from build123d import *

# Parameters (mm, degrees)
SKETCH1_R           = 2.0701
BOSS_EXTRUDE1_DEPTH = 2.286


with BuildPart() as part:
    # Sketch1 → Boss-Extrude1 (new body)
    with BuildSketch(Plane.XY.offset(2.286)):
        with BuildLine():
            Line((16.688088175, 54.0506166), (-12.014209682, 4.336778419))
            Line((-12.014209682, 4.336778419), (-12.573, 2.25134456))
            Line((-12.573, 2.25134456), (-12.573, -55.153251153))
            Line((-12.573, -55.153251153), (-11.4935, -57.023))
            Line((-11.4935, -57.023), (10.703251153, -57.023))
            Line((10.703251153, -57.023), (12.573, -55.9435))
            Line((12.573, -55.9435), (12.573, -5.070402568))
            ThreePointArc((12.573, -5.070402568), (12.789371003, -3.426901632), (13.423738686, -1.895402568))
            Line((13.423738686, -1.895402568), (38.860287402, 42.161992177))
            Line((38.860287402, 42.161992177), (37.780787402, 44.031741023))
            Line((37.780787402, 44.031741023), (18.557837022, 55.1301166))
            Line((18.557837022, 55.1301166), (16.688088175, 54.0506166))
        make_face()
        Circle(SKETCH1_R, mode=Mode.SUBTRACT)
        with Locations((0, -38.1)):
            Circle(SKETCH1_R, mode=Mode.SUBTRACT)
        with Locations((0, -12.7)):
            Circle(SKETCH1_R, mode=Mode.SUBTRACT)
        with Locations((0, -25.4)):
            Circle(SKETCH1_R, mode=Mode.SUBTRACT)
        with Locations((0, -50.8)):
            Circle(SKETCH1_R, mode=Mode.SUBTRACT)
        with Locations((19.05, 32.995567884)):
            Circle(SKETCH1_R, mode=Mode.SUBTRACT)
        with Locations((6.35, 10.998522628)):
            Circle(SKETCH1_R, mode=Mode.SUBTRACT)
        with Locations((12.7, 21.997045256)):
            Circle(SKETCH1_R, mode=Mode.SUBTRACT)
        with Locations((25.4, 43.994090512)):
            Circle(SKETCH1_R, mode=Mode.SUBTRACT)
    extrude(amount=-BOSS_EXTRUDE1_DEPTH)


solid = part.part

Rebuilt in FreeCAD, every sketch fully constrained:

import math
import FreeCAD as App
import Part
import Sketcher
from FreeCAD import Vector
Q = App.Units.Quantity

doc = App.newDocument("Part")
body = doc.addObject("PartDesign::Body", "Body")

# Sketch on XY plane
sketch1 = body.newObject("Sketcher::SketchObject", "Sketch")
sketch1.AttachmentSupport = (doc.getObject("XY_Plane"), [""])
sketch1.MapMode = "FlatFace"
sketch1.AttachmentOffset = App.Placement(Vector(0, 0, 0.09 * 25.4), App.Rotation())
sketch1.addGeometry([
    Part.LineSegment(Vector(16.7, 54.1, 0), Vector(-12, 4.3, 0)),  # 0
    Part.LineSegment(Vector(-12, 4.3, 0), Vector(-12.6, 2.3, 0)),  # 1
    Part.LineSegment(Vector(-12.6, 2.3, 0), Vector(-12.6, -55.2, 0)),  # 2
    Part.LineSegment(Vector(-12.6, -55.2, 0), Vector(-11.5, -57, 0)),  # 3
    Part.LineSegment(Vector(-11.5, -57, 0), Vector(10.7, -57, 0)),  # 4
    Part.LineSegment(Vector(10.7, -57, 0), Vector(12.6, -55.9, 0)),  # 5
    Part.LineSegment(Vector(12.6, -55.9, 0), Vector(12.6, -5.1, 0)),  # 6
    Part.ArcOfCircle(Part.Circle(Vector(18.9, -5.1, 0), Vector(0, 0, 1), 6.4), math.radians(150), math.radians(180)),  # 7
    Part.LineSegment(Vector(13.4, -1.9, 0), Vector(38.9, 42.2, 0)),  # 8
    Part.LineSegment(Vector(38.9, 42.2, 0), Vector(37.8, 44, 0)),  # 9
    Part.LineSegment(Vector(37.8, 44, 0), Vector(18.6, 55.1, 0)),  # 10
    Part.LineSegment(Vector(18.6, 55.1, 0), Vector(16.7, 54.1, 0)),  # 11
    Part.Circle(Vector(0, -50.8, 0), Vector(0, 0, 1), 2.1),  # 12
    Part.Circle(Vector(0, -38.1, 0), Vector(0, 0, 1), 2.1),  # 13
    Part.Circle(Vector(0, -25.4, 0), Vector(0, 0, 1), 2.1),  # 14
    Part.Circle(Vector(0, -12.7, 0), Vector(0, 0, 1), 2.1),  # 15
    Part.Circle(Vector(0, 0, 0), Vector(0, 0, 1), 2.1),  # 16
    Part.Circle(Vector(6.3, 11, 0), Vector(0, 0, 1), 2.1),  # 17
    Part.Circle(Vector(12.7, 22, 0), Vector(0, 0, 1), 2.1),  # 18
    Part.Circle(Vector(19.1, 33, 0), Vector(0, 0, 1), 2.1),  # 19
    Part.Circle(Vector(25.4, 44, 0), Vector(0, 0, 1), 2.1),  # 20
], False)
sketch1.addConstraint([
    Sketcher.Constraint("Coincident", 0, 2, 1, 1),
    Sketcher.Constraint("Coincident", 1, 2, 2, 1),
    Sketcher.Constraint("Coincident", 2, 2, 3, 1),
    Sketcher.Constraint("Coincident", 3, 2, 4, 1),
    Sketcher.Constraint("Coincident", 4, 2, 5, 1),
    Sketcher.Constraint("Coincident", 5, 2, 6, 1),
    Sketcher.Constraint("Tangent", 6, 2, 7, 2),
    Sketcher.Constraint("Tangent", 7, 1, 8, 1),
    Sketcher.Constraint("Coincident", 8, 2, 9, 1),
    Sketcher.Constraint("Coincident", 9, 2, 10, 1),
    Sketcher.Constraint("Coincident", 10, 2, 11, 1),
    Sketcher.Constraint("Coincident", 11, 2, 0, 1),
    Sketcher.Constraint("Vertical", 2),
    Sketcher.Constraint("Horizontal", 4),
    Sketcher.Constraint("Vertical", 6),
    Sketcher.Constraint("Coincident", 16, 3, -1, 1),
    Sketcher.Constraint("Equal", 12, 13),
    Sketcher.Constraint("Equal", 13, 14),
    Sketcher.Constraint("Equal", 14, 15),
    Sketcher.Constraint("Equal", 15, 16),
    Sketcher.Constraint("Equal", 16, 17),
    Sketcher.Constraint("Equal", 17, 18),
    Sketcher.Constraint("Equal", 18, 19),
    Sketcher.Constraint("Equal", 19, 20),
    Sketcher.Constraint("PointOnObject", 12, 3, -2),
    Sketcher.Constraint("PointOnObject", 13, 3, -2),
    Sketcher.Constraint("PointOnObject", 14, 3, -2),
    Sketcher.Constraint("PointOnObject", 15, 3, -2),
    Sketcher.Constraint("Perpendicular", 3, 5),
    Sketcher.Constraint("Parallel", 0, 8),
    Sketcher.Constraint("Perpendicular", 5, 9),
    Sketcher.Constraint("Perpendicular", 8, 10),
    Sketcher.Constraint("Perpendicular", 9, 11),
    Sketcher.Constraint("Equal", 1, 3),
    Sketcher.Constraint("Equal", 3, 5),
    Sketcher.Constraint("Equal", 5, 9),
    Sketcher.Constraint("Equal", 9, 11),
    Sketcher.Constraint("Radius", 7, Q("0.25 in")),
    Sketcher.Constraint("Diameter", 12, Q("0.163 in")),
    Sketcher.Constraint("DistanceY", 12, 3, -1, 1, Q("2 in")),
    Sketcher.Constraint("DistanceY", 14, 3, -1, 1, Q("1 in")),
    Sketcher.Constraint("DistanceX", -1, 1, 20, 3, Q("1 in")),
    Sketcher.Constraint("Angle", 0, Q("-120 deg")),
    Sketcher.Constraint("Angle", 1, Q("-105 deg")),
    Sketcher.Constraint("Angle", 3, Q("-60 deg")),
    Sketcher.Constraint("DistanceY", 13, 3, 15, 3, Q("1 in")),
    Sketcher.Constraint("DistanceY", 13, 3, -1, 1, Q("1.5 in")),
    Sketcher.Constraint("DistanceX", -1, 1, 18, 3, Q("0.5 in")),
    Sketcher.Constraint("DistanceX", 17, 3, 19, 3, Q("0.5 in")),
    Sketcher.Constraint("DistanceX", -1, 1, 17, 3, Q("0.25 in")),
    Sketcher.Constraint("DistanceX", 2, 2, 5, 2, Q("0.99 in")),
    Sketcher.Constraint("Distance", 1, Q("0.085 in")),
    Sketcher.Constraint("DistanceX", -1, 1, 7, 3, Q("0.745 in")),
    Sketcher.Constraint("DistanceY", 3, 2, -1, 1, Q("2.245 in")),
    Sketcher.Constraint("DistanceY", 8, 2, 20, 3, Q("1.832098 mm")),
    Sketcher.Constraint("DistanceX", 11, 2, 9, 2, Q("21.092699 mm")),
    Sketcher.Constraint("DistanceY", 2, 2, 2, 1, Q("57.404596 mm")),
    Sketcher.Constraint("DistanceY", -1, 1, 20, 3, Q("43.994091 mm")),
    Sketcher.Constraint("DistanceY", 7, 3, 19, 3, Q("38.06597 mm")),
    Sketcher.Constraint("DistanceY", 1, 2, 17, 3, Q("8.747178 mm")),
    Sketcher.Constraint("DistanceY", 18, 3, 10, 2, Q("33.133071 mm")),
])
pad1 = body.newObject("PartDesign::Pad", "Pad")
pad1.Profile = sketch1
pad1.Length = Q("0.09 in")
pad1.Reversed = True

doc.recompute()
